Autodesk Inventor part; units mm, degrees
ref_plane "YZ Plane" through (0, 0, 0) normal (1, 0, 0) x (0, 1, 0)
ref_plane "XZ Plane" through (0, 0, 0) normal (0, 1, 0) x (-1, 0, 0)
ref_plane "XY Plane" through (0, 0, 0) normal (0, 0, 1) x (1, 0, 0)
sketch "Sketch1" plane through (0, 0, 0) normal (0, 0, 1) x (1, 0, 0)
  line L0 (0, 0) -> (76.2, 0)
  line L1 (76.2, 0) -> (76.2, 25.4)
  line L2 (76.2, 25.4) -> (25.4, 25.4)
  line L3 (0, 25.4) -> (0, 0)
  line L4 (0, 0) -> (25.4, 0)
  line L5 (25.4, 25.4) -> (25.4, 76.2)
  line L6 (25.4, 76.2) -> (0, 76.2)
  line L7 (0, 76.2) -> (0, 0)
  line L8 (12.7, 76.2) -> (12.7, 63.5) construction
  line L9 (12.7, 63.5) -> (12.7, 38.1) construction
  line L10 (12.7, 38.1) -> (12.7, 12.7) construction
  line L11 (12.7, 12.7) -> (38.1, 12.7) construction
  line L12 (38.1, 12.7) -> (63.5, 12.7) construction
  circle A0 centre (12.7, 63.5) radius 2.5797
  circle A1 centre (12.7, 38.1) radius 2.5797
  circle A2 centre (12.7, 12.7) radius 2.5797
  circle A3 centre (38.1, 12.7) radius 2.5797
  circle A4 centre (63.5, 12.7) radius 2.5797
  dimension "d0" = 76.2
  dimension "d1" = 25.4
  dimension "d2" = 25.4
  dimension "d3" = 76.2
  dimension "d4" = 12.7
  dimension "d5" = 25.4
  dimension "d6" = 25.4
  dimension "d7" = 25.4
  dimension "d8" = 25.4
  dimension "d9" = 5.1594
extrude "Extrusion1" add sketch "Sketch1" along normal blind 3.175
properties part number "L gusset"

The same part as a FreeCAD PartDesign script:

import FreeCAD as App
import Part
import Sketcher
from FreeCAD import Vector
Q = App.Units.Quantity


def add_polygon(sketch, points):
    """Adds a closed chain of lines whose ends are joined by coincident constraints."""
    first, n = sketch.GeometryCount, len(points)
    for a, b in zip(points, points[1:] + points[:1]):
        sketch.addGeometry(Part.LineSegment(App.Vector(*a, 0), App.Vector(*b, 0)), False)
    for i in range(n):
        sketch.addConstraint(Sketcher.Constraint("Coincident", first + i, 2, first + (i + 1) % n, 1))

doc = App.newDocument("Part")
body = doc.addObject("PartDesign::Body", "Body")

# Sketch on XY plane
sketch1 = body.newObject("Sketcher::SketchObject", "Sketch")
sketch1.AttachmentSupport = (doc.getObject("XY_Plane"), [""])
sketch1.MapMode = "FlatFace"
add_polygon(sketch1, [(0, 76.2), (0, 0), (76.2, 0), (76.2, 25.4), (25.4, 25.4), (25.4, 76.2)])  # lines 0-5
sketch1.addGeometry(Part.Circle(Vector(12.7, 12.7, 0), Vector(0, 0, 1), 2.5797), False)  # 6
sketch1.addGeometry(Part.Circle(Vector(38.1, 12.7, 0), Vector(0, 0, 1), 2.5797), False)  # 7
sketch1.addGeometry(Part.Circle(Vector(63.5, 12.7, 0), Vector(0, 0, 1), 2.5797), False)  # 8
sketch1.addGeometry(Part.Circle(Vector(12.7, 38.1, 0), Vector(0, 0, 1), 2.5797), False)  # 9
sketch1.addGeometry(Part.Circle(Vector(12.7, 63.5, 0), Vector(0, 0, 1), 2.5797), False)  # 10
sketch1.addConstraint(Sketcher.Constraint("Vertical", 0))
sketch1.addConstraint(Sketcher.Constraint("Horizontal", 1))
sketch1.addConstraint(Sketcher.Constraint("Vertical", 2))
sketch1.addConstraint(Sketcher.Constraint("Horizontal", 3))
sketch1.addConstraint(Sketcher.Constraint("Vertical", 4))
sketch1.addConstraint(Sketcher.Constraint("Horizontal", 5))
sketch1.addConstraint(Sketcher.Constraint("Coincident", 0, 2, -1, 1))
sketch1.addConstraint(Sketcher.Constraint("Equal", 6, 7))
sketch1.addConstraint(Sketcher.Constraint("Equal", 7, 8))
sketch1.addConstraint(Sketcher.Constraint("Equal", 8, 9))
sketch1.addConstraint(Sketcher.Constraint("Equal", 9, 10))
sketch1.addConstraint(Sketcher.Constraint("Horizontal", 6, 3, 7, 3))
sketch1.addConstraint(Sketcher.Constraint("Horizontal", 7, 3, 8, 3))
sketch1.addConstraint(Sketcher.Constraint("Vertical", 6, 3, 9, 3))
sketch1.addConstraint(Sketcher.Constraint("Vertical", 9, 3, 10, 3))
sketch1.addConstraint(Sketcher.Constraint("Equal", 1, 0))
sketch1.addConstraint(Sketcher.Constraint("Equal", 5, 2))
sketch1.addConstraint(Sketcher.Constraint("DistanceX", 1, 1, 1, 2, Q("3 in")))
sketch1.addConstraint(Sketcher.Constraint("DistanceX", 5, 2, 5, 1, Q("1 in")))
sketch1.addConstraint(Sketcher.Constraint("Diameter", 6, Q("0.203126 in")))
sketch1.addConstraint(Sketcher.Constraint("DistanceX", 6, 3, 7, 3, Q("1 in")))
sketch1.addConstraint(Sketcher.Constraint("DistanceX", 7, 3, 8, 3, Q("1 in")))
sketch1.addConstraint(Sketcher.Constraint("DistanceY", 6, 3, 9, 3, Q("1 in")))
sketch1.addConstraint(Sketcher.Constraint("DistanceY", 9, 3, 10, 3, Q("1 in")))
sketch1.addConstraint(Sketcher.Constraint("DistanceX", -1, 1, 6, 3, Q("0.5 in")))
sketch1.addConstraint(Sketcher.Constraint("DistanceY", -1, 1, 6, 3, Q("0.5 in")))
pad1 = body.newObject("PartDesign::Pad", "Pad")
pad1.Profile = sketch1
pad1.Length = Q("0.125 in")

doc.recompute()
